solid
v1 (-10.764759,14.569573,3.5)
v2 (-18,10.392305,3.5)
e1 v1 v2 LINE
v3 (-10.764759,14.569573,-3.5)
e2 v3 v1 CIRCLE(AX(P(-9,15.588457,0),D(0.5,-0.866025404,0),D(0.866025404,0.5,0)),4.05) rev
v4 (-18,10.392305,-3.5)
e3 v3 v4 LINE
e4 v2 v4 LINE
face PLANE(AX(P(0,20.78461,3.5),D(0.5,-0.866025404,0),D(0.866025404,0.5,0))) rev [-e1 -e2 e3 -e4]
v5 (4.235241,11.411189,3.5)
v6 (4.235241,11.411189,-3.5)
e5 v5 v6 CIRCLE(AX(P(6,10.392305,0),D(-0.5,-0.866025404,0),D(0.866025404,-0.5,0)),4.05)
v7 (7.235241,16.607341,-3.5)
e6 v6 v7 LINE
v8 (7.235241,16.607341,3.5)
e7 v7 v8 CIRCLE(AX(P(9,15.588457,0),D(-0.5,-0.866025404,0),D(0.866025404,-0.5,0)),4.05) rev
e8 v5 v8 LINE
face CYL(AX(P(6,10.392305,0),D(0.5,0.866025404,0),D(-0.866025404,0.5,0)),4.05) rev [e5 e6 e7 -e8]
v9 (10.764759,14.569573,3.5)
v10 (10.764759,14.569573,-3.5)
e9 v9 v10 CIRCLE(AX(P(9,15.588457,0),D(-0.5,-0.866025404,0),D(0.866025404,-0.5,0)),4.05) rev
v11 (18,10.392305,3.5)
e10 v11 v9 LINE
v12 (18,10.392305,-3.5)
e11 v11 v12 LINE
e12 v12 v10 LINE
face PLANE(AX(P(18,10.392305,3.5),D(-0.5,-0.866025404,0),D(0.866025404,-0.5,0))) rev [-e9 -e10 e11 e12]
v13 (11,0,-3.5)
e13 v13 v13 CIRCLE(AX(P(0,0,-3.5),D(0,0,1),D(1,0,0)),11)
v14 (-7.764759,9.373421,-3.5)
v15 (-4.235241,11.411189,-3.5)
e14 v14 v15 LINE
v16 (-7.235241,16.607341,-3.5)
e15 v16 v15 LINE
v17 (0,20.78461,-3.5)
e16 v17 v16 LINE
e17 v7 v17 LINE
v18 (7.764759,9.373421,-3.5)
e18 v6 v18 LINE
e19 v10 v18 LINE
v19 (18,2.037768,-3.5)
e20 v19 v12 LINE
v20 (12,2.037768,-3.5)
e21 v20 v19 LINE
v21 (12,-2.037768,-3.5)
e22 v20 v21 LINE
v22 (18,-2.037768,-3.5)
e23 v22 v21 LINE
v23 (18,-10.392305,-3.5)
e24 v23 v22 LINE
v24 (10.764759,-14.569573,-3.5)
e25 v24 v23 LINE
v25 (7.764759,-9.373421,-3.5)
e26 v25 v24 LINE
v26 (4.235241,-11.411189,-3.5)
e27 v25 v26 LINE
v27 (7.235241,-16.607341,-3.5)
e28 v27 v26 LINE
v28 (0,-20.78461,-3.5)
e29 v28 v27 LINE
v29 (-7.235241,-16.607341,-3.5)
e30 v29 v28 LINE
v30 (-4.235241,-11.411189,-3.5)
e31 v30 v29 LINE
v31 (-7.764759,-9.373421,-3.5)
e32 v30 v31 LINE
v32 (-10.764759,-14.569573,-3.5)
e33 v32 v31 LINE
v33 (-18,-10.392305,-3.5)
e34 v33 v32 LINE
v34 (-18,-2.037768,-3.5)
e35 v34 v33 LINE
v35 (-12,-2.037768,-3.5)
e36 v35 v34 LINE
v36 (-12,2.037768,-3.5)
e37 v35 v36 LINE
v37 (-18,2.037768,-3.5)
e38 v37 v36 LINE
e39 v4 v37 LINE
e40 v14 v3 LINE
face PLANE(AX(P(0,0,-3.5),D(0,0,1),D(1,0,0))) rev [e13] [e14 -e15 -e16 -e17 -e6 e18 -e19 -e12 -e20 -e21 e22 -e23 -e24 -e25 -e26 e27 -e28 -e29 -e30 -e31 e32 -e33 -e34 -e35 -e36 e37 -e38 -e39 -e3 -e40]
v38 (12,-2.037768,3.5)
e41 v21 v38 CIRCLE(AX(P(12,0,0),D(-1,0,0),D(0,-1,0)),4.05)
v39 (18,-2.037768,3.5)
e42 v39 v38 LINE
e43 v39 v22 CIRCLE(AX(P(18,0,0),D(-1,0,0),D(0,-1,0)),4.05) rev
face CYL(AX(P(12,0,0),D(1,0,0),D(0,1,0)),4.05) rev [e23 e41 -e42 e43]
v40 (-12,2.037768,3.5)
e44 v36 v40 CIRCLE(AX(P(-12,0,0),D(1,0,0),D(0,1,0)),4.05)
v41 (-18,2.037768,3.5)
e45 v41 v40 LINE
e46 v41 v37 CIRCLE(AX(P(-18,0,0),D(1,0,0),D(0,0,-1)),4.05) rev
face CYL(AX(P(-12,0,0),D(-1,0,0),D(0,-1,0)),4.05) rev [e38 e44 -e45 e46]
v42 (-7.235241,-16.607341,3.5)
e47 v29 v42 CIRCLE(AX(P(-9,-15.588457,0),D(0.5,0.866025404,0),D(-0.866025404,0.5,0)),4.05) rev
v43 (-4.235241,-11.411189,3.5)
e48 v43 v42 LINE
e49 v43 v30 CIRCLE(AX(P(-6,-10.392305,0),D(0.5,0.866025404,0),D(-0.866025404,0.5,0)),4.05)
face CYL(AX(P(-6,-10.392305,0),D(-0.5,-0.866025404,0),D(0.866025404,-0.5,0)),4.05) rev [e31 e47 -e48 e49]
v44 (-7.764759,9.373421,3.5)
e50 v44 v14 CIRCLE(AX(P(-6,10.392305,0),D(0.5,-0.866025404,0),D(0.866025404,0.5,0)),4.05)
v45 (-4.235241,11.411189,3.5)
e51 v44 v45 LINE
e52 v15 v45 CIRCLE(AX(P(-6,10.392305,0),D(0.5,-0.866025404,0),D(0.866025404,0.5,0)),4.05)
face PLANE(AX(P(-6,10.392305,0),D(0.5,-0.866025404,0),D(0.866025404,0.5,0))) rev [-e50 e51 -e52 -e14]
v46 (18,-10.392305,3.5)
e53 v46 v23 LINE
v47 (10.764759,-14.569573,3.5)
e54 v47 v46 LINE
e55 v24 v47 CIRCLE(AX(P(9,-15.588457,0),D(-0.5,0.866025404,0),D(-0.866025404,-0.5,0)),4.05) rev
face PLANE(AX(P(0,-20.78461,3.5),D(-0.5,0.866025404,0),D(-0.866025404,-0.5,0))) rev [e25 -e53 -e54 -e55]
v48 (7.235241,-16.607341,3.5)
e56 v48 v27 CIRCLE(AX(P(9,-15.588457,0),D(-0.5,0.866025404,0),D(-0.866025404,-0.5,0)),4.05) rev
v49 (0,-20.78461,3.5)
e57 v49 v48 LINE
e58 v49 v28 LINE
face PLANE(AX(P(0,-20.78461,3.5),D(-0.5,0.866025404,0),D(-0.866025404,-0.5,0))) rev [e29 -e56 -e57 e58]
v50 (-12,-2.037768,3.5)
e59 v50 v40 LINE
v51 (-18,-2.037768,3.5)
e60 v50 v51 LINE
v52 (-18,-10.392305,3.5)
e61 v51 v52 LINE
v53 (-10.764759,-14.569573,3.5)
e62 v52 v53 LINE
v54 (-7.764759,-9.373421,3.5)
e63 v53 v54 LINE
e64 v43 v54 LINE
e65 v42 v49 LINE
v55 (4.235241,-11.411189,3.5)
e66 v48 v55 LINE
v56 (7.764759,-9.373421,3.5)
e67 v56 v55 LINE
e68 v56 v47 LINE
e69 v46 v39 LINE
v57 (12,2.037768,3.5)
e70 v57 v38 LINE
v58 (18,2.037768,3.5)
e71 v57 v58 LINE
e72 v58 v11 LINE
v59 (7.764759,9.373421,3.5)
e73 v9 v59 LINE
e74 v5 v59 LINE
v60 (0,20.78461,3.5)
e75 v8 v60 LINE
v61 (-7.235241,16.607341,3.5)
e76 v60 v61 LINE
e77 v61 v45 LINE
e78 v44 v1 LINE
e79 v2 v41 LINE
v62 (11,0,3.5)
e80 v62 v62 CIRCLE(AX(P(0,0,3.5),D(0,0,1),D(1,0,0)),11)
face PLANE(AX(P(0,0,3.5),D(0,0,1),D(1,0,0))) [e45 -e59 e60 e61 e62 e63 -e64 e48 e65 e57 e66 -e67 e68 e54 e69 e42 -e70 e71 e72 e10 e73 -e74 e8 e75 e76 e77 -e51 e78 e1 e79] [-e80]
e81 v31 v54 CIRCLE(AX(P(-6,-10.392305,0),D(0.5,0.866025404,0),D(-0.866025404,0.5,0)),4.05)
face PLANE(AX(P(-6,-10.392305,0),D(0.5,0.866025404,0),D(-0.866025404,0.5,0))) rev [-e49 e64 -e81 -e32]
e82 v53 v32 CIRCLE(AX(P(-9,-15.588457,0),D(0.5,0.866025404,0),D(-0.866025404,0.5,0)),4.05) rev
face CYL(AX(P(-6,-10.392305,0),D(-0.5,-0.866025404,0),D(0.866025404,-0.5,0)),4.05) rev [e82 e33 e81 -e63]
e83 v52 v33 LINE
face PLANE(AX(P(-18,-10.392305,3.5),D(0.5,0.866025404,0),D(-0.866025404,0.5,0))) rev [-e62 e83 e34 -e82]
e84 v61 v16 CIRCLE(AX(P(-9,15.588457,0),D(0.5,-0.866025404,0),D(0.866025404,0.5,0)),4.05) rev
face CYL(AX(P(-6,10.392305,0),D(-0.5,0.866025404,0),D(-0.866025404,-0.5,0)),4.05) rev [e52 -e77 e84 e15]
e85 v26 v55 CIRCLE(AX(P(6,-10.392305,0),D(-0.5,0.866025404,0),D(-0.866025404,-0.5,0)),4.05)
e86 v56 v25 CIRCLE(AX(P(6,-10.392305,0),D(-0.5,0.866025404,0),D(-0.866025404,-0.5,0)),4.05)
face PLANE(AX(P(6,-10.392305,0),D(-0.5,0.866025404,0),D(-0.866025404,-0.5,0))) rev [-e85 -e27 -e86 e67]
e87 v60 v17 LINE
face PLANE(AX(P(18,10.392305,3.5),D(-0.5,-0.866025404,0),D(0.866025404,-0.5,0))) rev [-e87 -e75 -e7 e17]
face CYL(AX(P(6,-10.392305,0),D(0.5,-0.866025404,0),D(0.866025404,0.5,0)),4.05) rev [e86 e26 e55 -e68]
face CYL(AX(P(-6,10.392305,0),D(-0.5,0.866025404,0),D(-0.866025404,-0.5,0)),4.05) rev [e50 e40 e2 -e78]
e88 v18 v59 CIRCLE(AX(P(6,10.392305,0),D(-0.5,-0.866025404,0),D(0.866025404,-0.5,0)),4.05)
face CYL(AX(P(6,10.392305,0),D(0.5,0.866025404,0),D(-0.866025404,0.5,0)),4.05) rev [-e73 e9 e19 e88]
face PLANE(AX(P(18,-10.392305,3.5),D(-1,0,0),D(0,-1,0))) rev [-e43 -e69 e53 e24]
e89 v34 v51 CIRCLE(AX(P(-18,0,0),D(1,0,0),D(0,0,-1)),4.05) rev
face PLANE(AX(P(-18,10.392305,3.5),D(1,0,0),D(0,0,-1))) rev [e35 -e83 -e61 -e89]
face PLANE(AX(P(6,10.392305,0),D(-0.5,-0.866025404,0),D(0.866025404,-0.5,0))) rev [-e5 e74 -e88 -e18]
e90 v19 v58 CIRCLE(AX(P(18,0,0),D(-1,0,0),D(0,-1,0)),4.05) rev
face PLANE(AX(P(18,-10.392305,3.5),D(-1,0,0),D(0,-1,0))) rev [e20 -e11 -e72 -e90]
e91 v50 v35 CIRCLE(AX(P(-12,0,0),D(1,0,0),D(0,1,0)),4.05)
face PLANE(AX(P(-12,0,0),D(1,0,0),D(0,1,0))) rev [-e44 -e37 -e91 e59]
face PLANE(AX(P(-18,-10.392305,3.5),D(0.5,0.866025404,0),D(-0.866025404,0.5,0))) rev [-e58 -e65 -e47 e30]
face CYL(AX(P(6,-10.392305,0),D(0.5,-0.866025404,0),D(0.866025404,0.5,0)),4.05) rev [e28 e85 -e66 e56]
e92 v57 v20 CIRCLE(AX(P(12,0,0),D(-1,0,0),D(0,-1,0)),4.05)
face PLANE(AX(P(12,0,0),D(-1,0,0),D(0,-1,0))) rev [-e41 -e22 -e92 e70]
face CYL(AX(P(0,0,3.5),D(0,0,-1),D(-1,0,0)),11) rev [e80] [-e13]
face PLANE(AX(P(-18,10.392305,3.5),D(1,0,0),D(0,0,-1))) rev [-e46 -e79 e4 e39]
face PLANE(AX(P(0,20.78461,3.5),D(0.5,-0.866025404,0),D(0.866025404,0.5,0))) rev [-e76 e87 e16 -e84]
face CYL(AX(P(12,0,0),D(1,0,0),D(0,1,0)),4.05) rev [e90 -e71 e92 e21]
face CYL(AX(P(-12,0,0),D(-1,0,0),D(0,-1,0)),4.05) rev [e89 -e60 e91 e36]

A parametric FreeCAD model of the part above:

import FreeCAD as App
import Part
import Sketcher

V = App.Vector
Q = App.Units.Quantity


def add_polygon(sketch, points):
    """Adds a closed chain of lines whose ends are joined by coincident constraints."""
    first, n = sketch.GeometryCount, len(points)
    for a, b in zip(points, points[1:] + points[:1]):
        sketch.addGeometry(Part.LineSegment(App.Vector(*a, 0), App.Vector(*b, 0)), False)
    for i in range(n):
        sketch.addConstraint(Sketcher.Constraint("Coincident", first + i, 2, first + (i + 1) % n, 1))

doc = App.newDocument("Part")
body = doc.addObject("PartDesign::Body", "Body")

# Sketch on XY plane
sketch1 = doc.addObject("Sketcher::SketchObject", "Sketch")
body.addObject(sketch1)
sketch1.AttachmentSupport = (doc.XY_Plane, [""])
sketch1.MapMode = "FlatFace"
add_polygon(sketch1, [(18, -10.392305), (18, 10.392305), (0, 20.78461), (-18, 10.392305), (-18, -10.392305), (0, -20.78461)])  # lines 0-5
sketch1.addGeometry(Part.Circle(V(0, 0, 0), V(0, 0, 1), 11), False)  # 6
sketch1.addConstraint([
    Sketcher.Constraint("Vertical", 0),
    Sketcher.Constraint("Vertical", 3),
    Sketcher.Constraint("Coincident", 6, 3, -1, 1),
    Sketcher.Constraint("Symmetric", 0, 2, 3, 2, -1, 1),
    Sketcher.Constraint("Symmetric", 1, 2, 4, 2, -1, 1),
    Sketcher.Constraint("PointOnObject", 1, 2, -2),
    Sketcher.Constraint("Parallel", 2, 5),
    Sketcher.Constraint("Horizontal", 0, 2, 2, 2),
    Sketcher.Constraint("Diameter", 6, 22.0),
    Sketcher.Constraint("Angle", 1, Q("150 deg")),
    Sketcher.Constraint("DistanceX", -1, 1, 0, 2, 18.0),
    Sketcher.Constraint("DistanceY", 0, 1, 0, 2, 20.78461),
])
pad1 = doc.addObject("PartDesign::Pad", "Pad")
body.addObject(pad1)
pad1.Profile = sketch1
pad1.Length = 7
pad1.Midplane = True

# Sketch on an angled plane
sketch2 = doc.addObject("Sketcher::SketchObject", "Sketch001")
body.addObject(sketch2)
sketch2.Placement = App.Placement(V(-12.610372, -13.504008, 0), App.Rotation(V(0.866025404, -0.5, 0), V(0, 0, -1), V(0.5, 0.866025404, 0), "ZXY"))
sketch2.addGeometry(Part.Circle(V(4.168899, 0, 0), V(0, 0, 1), 4.05), False)
sketch2.addConstraint([
    Sketcher.Constraint("PointOnObject", 0, 3, -1),
    Sketcher.Constraint("Diameter", 0, 8.1),
    Sketcher.Constraint("DistanceX", -1, 1, 0, 3, 4.168899),
])
pocket1 = doc.addObject("PartDesign::Pocket", "Pocket")
body.addObject(pocket1)
pocket1.Profile = sketch2
pocket1.Length = 6
pocket1.Reversed = True
doc.recompute()

polarpattern = doc.addObject("PartDesign::PolarPattern", "PolarPattern")
body.addObject(polarpattern)
polarpattern.Originals = [pocket1]
polarpattern.Axis = (doc.Z_Axis, [""])
polarpattern.Angle = 360
polarpattern.Occurrences = 6
body.Tip = polarpattern

doc.recompute()
